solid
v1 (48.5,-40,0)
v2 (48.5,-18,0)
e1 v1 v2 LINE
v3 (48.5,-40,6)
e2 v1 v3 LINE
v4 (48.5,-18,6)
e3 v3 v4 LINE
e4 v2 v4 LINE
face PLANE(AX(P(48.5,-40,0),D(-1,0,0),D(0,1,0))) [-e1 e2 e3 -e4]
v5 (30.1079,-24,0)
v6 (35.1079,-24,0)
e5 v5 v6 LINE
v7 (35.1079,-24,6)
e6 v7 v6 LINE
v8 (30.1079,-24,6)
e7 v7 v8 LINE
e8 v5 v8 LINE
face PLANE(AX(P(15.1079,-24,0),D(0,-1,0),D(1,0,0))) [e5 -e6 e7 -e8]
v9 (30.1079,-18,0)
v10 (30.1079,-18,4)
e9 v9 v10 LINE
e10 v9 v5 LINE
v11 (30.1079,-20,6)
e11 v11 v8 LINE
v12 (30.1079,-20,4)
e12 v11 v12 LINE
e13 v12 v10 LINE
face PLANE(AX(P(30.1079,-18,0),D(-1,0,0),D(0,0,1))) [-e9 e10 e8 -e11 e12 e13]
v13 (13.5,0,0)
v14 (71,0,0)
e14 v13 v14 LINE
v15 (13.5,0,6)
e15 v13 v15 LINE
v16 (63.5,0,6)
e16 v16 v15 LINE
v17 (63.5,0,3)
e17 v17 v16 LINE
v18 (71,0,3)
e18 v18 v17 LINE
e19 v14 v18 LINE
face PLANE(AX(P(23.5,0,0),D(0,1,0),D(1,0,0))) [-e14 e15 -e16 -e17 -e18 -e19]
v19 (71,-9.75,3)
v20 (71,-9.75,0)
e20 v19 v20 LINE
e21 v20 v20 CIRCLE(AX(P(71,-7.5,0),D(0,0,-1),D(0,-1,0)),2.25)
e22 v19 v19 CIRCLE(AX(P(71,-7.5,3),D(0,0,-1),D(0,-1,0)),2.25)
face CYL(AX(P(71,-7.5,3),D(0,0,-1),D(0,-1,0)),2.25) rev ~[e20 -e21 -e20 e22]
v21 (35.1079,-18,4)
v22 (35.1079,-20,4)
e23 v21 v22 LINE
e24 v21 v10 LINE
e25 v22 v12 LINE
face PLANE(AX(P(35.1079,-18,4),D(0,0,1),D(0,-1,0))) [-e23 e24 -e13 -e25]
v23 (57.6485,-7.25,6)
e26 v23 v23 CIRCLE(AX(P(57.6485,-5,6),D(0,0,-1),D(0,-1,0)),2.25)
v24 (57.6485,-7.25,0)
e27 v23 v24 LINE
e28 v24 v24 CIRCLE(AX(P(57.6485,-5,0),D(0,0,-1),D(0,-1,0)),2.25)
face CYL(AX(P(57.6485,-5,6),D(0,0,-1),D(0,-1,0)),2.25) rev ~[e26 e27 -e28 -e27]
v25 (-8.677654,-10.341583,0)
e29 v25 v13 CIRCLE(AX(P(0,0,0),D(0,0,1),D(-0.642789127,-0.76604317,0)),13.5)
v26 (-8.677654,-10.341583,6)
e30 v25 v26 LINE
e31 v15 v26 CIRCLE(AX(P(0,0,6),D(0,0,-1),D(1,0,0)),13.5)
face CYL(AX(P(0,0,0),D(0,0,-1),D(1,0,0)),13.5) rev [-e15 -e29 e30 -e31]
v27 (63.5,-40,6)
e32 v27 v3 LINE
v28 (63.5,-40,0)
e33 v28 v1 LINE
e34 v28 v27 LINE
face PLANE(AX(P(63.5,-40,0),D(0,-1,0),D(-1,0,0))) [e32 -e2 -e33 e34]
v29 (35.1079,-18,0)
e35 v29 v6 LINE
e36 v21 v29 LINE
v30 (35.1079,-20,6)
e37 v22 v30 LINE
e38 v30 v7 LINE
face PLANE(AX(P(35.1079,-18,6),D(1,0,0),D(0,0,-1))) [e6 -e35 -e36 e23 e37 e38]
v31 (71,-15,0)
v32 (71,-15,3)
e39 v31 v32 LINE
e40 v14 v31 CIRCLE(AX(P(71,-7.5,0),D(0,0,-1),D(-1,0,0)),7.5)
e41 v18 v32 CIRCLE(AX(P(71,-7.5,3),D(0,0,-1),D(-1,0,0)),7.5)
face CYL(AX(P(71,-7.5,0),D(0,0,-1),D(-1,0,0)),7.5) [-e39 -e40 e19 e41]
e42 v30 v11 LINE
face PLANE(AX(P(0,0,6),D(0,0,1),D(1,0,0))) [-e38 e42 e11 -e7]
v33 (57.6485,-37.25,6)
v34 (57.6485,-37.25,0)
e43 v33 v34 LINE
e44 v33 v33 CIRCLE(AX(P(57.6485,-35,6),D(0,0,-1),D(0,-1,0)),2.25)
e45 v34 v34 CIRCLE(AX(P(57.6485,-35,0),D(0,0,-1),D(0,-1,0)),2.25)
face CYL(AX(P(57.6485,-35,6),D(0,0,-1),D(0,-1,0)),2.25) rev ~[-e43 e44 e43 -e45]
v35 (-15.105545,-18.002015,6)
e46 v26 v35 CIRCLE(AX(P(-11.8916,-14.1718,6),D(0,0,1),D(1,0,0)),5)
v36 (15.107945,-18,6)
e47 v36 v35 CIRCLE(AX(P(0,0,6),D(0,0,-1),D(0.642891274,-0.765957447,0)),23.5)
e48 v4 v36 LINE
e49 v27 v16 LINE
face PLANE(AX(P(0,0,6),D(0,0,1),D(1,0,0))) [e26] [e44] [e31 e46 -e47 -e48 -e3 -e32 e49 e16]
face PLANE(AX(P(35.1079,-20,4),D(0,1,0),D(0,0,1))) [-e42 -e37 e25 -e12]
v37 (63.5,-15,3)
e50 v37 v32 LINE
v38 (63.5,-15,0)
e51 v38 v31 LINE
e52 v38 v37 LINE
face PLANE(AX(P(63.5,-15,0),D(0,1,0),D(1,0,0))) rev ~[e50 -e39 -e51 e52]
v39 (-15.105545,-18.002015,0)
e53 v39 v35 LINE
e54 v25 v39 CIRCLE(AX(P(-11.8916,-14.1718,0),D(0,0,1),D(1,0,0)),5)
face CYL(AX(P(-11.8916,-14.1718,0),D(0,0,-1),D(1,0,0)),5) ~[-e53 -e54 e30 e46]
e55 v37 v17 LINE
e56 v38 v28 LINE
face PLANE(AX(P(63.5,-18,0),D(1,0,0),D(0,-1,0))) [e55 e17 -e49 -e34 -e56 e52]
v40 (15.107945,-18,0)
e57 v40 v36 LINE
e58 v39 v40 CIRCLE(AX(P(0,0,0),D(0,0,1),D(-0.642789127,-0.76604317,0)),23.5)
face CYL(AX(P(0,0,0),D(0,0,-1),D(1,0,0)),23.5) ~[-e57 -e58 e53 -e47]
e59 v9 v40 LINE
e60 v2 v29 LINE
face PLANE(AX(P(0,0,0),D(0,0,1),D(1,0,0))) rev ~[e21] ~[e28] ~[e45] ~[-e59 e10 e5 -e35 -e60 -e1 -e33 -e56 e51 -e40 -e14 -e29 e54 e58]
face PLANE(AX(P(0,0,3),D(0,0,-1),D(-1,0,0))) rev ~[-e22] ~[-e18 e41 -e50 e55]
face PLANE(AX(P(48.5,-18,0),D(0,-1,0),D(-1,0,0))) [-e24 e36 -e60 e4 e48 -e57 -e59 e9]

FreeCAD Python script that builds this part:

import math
import FreeCAD as App
import Part
import Sketcher
from FreeCAD import Vector

doc = App.newDocument("Part")
body = doc.addObject("PartDesign::Body", "Body")

# Sketch on XY plane
sketch1 = body.newObject("Sketcher::SketchObject", "Sketch")
sketch1.AttachmentSupport = (doc.getObject("XY_Plane"), [""])
sketch1.MapMode = "FlatFace"
sketch1.addGeometry([
    Part.LineSegment(Vector(15, -18, 0), Vector(48, -18, 0)),  # 0
    Part.LineSegment(Vector(48, -18, 0), Vector(48, -40, 0)),  # 1
    Part.LineSegment(Vector(48, -40, 0), Vector(64, -40, 0)),  # 2
    Part.LineSegment(Vector(64, -40, 0), Vector(64, 0, 0)),  # 3
    Part.LineSegment(Vector(64, 0, 0), Vector(14, 0, 0)),  # 4
    Part.ArcOfCircle(Part.Circle(Vector(0, 0, 0), Vector(0, 0, 1), 14), math.radians(-130), math.radians(0)),  # 5
    Part.ArcOfCircle(Part.Circle(Vector(-12, -14, 0), Vector(0, 0, 1), 5), math.radians(50), math.radians(230)),  # 6
    Part.ArcOfCircle(Part.Circle(Vector(0, 0, 0), Vector(0, 0, 1), 24), math.radians(-130), math.radians(-50)),  # 7
], False)
sketch1.addConstraint([
    Sketcher.Constraint("Coincident", 0, 2, 1, 1),
    Sketcher.Constraint("Coincident", 1, 2, 2, 1),
    Sketcher.Constraint("Coincident", 2, 2, 3, 1),
    Sketcher.Constraint("Coincident", 3, 2, 4, 1),
    Sketcher.Constraint("Coincident", 4, 2, 5, 2),
    Sketcher.Constraint("Tangent", 5, 1, 6, 1),
    Sketcher.Constraint("Tangent", 6, 2, 7, 1),
    Sketcher.Constraint("Coincident", 7, 2, 0, 1),
    Sketcher.Constraint("Horizontal", 0),
    Sketcher.Constraint("Vertical", 1),
    Sketcher.Constraint("Horizontal", 2),
    Sketcher.Constraint("Vertical", 3),
    Sketcher.Constraint("Horizontal", 4),
    Sketcher.Constraint("Coincident", 5, 3, -1, 1),
    Sketcher.Constraint("Coincident", 7, 3, -1, 1),
    Sketcher.Constraint("PointOnObject", 3, 2, -1),
    Sketcher.Constraint("Radius", 6, 5.0),
    Sketcher.Constraint("Radius", 5, 13.5),
    Sketcher.Constraint("DistanceX", 2, 1, 2, 2, 15.0),
    Sketcher.Constraint("DistanceX", 4, 2, 4, 1, 50.0),
    Sketcher.Constraint("DistanceY", 3, 1, 3, 2, 40.0),
    Sketcher.Constraint("DistanceY", 0, 2, -1, 1, 18.0),
    Sketcher.Constraint("DistanceX", 6, 3, 7, 2, 26.9995),
])
pad1 = body.newObject("PartDesign::Pad", "Pad")
pad1.Profile = sketch1
pad1.Length = 6

# Sketch on XY plane
sketch2 = body.newObject("Sketcher::SketchObject", "Sketch001")
sketch2.AttachmentSupport = (doc.getObject("XY_Plane"), [""])
sketch2.MapMode = "FlatFace"
sketch2.AttachmentOffset = App.Placement(Vector(0, 0, 6), App.Rotation())
sketch2.addGeometry([
    Part.Circle(Vector(57.6, -5, 0), Vector(0, 0, 1), 2.2),
    Part.Circle(Vector(57.6, -35, 0), Vector(0, 0, 1), 2.2),
], False)
sketch2.addConstraint([
    Sketcher.Constraint("Equal", 0, 1),
    Sketcher.Constraint("Vertical", 0, 3, 1, 3),
    Sketcher.Constraint("Diameter", 0, 4.5),
    Sketcher.Constraint("DistanceY", 0, 3, -1, 1, 5.0),
    Sketcher.Constraint("DistanceY", 1, 3, -1, 1, 35.0),
    Sketcher.Constraint("DistanceX", -1, 1, 0, 3, 57.6485),
])
doc.recompute()
hole = body.newObject("PartDesign::Hole", "Hole")
hole.Profile = sketch2
hole.ThreadType = "None"
hole.Diameter = 4.5
hole.DepthType = "ThroughAll"

# Sketch on XY plane
sketch3 = body.newObject("Sketcher::SketchObject", "Sketch002")
sketch3.AttachmentSupport = (doc.getObject("XY_Plane"), [""])
sketch3.MapMode = "FlatFace"
sketch3.addGeometry([
    Part.LineSegment(Vector(64, -15, 0), Vector(64, 0, 0)),
    Part.LineSegment(Vector(64, 0, 0), Vector(71, 0, 0)),
    Part.ArcOfCircle(Part.Circle(Vector(71, -8, 0), Vector(0, 0, 1), 8), math.radians(-90), math.radians(90)),
    Part.LineSegment(Vector(71, -15, 0), Vector(64, -15, 0)),
], False)
sketch3.addConstraint([
    Sketcher.Constraint("Coincident", 0, 2, 1, 1),
    Sketcher.Constraint("Tangent", 1, 2, 2, 2),
    Sketcher.Constraint("Tangent", 2, 1, 3, 1),
    Sketcher.Constraint("Coincident", 3, 2, 0, 1),
    Sketcher.Constraint("Vertical", 0),
    Sketcher.Constraint("Horizontal", 1),
    Sketcher.Constraint("Horizontal", 3),
    Sketcher.Constraint("PointOnObject", 0, 2, -1),
    Sketcher.Constraint("Radius", 2, 7.5),
    Sketcher.Constraint("DistanceX", 1, 1, 1, 2, 7.5),
    Sketcher.Constraint("DistanceX", -1, 1, 2, 3, 71.0),
])
pad2 = body.newObject("PartDesign::Pad", "Pad001")
pad2.Profile = sketch3
pad2.Length = 3

# Sketch on XY plane
sketch4 = body.newObject("Sketcher::SketchObject", "Sketch003")
sketch4.AttachmentSupport = (doc.getObject("XY_Plane"), [""])
sketch4.MapMode = "FlatFace"
sketch4.AttachmentOffset = App.Placement(Vector(0, 0, 3), App.Rotation())
sketch4.addGeometry(Part.Circle(Vector(71, -7.5, 0), Vector(0, 0, 1), 2.2), False)
sketch4.addConstraint([
    Sketcher.Constraint("Diameter", 0, 4.5),
    Sketcher.Constraint("DistanceX", -1, 1, 0, 3, 71.0),
    Sketcher.Constraint("DistanceY", 0, 3, -1, 1, 7.5),
])
doc.recompute()
hole2 = body.newObject("PartDesign::Hole", "Hole001")
hole2.Profile = sketch4
hole2.ThreadType = "None"
hole2.Diameter = 4.5
hole2.DepthType = "ThroughAll"

# Sketch on XZ plane
sketch5 = body.newObject("Sketcher::SketchObject", "Sketch004")
sketch5.AttachmentSupport = (doc.getObject("XZ_Plane"), [""])
sketch5.MapMode = "FlatFace"
sketch5.AttachmentOffset = App.Placement(Vector(0, 0, 18), App.Rotation())
sketch5.addGeometry([
    Part.LineSegment(Vector(30, 6, 0), Vector(30, 0, 0)),
    Part.LineSegment(Vector(30, 0, 0), Vector(35, 0, 0)),
    Part.LineSegment(Vector(35, 0, 0), Vector(35, 6, 0)),
    Part.LineSegment(Vector(35, 6, 0), Vector(30, 6, 0)),
], False)
sketch5.addConstraint([
    Sketcher.Constraint("Coincident", 0, 2, 1, 1),
    Sketcher.Constraint("Coincident", 1, 2, 2, 1),
    Sketcher.Constraint("Coincident", 2, 2, 3, 1),
    Sketcher.Constraint("Coincident", 3, 2, 0, 1),
    Sketcher.Constraint("Vertical", 0),
    Sketcher.Constraint("Horizontal", 1),
    Sketcher.Constraint("Vertical", 2),
    Sketcher.Constraint("Horizontal", 3),
    Sketcher.Constraint("PointOnObject", 0, 2, -1),
    Sketcher.Constraint("DistanceX", 1, 1, 1, 2, 5.0),
    Sketcher.Constraint("DistanceY", 0, 2, 0, 1, 6.0),
    Sketcher.Constraint("DistanceX", -1, 1, 0, 2, 30.108),
])
pad3 = body.newObject("PartDesign::Pad", "Pad002")
pad3.Profile = sketch5
pad3.Length = 6

# Sketch on YZ plane
sketch6 = body.newObject("Sketcher::SketchObject", "Sketch005")
sketch6.AttachmentSupport = (doc.getObject("YZ_Plane"), [""])
sketch6.MapMode = "FlatFace"
sketch6.AttachmentOffset = App.Placement(Vector(0, 0, 35.1079), App.Rotation())
sketch6.addGeometry([
    Part.LineSegment(Vector(-20, 4, 0), Vector(-18, 4, 0)),
    Part.LineSegment(Vector(-18, 4, 0), Vector(-18, 6, 0)),
    Part.LineSegment(Vector(-18, 6, 0), Vector(-20, 6, 0)),
    Part.LineSegment(Vector(-20, 6, 0), Vector(-20, 4, 0)),
], False)
sketch6.addConstraint([
    Sketcher.Constraint("Coincident", 0, 2, 1, 1),
    Sketcher.Constraint("Coincident", 1, 2, 2, 1),
    Sketcher.Constraint("Coincident", 2, 2, 3, 1),
    Sketcher.Constraint("Coincident", 3, 2, 0, 1),
    Sketcher.Constraint("Horizontal", 0),
    Sketcher.Constraint("Vertical", 1),
    Sketcher.Constraint("Horizontal", 2),
    Sketcher.Constraint("Vertical", 3),
    Sketcher.Constraint("Equal", 2, 1),
    Sketcher.Constraint("DistanceX", 0, 1, 0, 2, 2.0),
    Sketcher.Constraint("DistanceX", 0, 2, -1, 1, 18.0),
    Sketcher.Constraint("DistanceY", -1, 1, 0, 2, 4.0),
])
pocket1 = body.newObject("PartDesign::Pocket", "Pocket")
pocket1.Profile = sketch6
pocket1.Length = 6

doc.recompute()
